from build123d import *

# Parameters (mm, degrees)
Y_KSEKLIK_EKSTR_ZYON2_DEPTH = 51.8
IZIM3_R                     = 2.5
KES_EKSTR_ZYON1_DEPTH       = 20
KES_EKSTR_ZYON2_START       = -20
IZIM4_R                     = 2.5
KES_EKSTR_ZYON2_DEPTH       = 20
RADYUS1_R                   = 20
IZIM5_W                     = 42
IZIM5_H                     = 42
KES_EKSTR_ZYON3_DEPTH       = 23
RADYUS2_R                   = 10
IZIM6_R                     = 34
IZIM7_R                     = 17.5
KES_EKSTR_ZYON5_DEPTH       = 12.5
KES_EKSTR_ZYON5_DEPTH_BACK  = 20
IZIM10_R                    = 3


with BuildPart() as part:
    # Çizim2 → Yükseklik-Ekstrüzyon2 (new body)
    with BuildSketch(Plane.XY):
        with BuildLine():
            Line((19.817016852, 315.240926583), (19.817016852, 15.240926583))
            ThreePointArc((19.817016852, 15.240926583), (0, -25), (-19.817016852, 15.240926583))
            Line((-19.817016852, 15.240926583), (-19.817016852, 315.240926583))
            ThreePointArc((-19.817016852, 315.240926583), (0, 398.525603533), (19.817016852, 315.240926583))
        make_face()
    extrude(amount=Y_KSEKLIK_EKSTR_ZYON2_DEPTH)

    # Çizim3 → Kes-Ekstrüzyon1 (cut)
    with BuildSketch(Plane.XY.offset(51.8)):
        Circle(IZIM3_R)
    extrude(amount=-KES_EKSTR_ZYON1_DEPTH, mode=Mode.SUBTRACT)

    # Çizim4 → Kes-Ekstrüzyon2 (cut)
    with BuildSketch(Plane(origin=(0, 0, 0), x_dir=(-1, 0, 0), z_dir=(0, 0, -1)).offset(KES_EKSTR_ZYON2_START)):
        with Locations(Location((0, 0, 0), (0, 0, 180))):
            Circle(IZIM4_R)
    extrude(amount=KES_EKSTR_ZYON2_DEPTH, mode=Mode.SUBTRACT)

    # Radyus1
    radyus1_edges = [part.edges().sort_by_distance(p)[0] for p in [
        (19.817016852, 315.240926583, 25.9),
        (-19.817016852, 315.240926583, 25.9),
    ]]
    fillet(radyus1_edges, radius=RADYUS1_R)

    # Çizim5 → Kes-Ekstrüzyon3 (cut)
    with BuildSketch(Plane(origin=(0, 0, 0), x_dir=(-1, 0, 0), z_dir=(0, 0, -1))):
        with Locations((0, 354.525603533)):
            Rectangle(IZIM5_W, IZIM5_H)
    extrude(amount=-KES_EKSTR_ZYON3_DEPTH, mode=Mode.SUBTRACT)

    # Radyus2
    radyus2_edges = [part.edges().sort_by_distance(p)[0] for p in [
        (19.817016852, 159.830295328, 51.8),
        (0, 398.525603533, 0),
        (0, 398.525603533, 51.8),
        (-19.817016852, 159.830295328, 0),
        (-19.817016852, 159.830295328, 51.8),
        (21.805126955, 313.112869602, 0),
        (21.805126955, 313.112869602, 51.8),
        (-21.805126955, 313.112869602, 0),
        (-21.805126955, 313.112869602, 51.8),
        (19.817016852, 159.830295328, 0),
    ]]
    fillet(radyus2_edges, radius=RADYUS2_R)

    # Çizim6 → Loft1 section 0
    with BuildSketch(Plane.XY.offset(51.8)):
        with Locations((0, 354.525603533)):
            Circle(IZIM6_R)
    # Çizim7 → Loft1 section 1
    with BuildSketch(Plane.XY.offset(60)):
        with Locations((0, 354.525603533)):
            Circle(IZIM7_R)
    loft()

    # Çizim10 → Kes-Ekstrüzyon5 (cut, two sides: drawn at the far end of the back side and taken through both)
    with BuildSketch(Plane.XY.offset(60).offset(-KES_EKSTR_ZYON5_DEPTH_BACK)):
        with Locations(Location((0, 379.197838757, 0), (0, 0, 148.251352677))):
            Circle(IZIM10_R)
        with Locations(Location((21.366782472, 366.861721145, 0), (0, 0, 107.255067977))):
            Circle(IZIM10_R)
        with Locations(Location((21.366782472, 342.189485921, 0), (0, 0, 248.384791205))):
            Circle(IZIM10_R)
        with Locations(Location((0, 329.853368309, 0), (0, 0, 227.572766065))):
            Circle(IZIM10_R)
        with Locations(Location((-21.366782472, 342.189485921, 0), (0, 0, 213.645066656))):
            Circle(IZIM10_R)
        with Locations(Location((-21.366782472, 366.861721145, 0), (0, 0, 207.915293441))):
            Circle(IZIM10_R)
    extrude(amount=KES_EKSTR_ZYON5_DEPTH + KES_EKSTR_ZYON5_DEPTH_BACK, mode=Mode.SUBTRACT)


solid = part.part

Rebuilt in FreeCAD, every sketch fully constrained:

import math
import FreeCAD as App
import Part
import Sketcher

V = App.Vector
Q = App.Units.Quantity


def edges_at(feature, points):
    """Names of the edges that pass closest to the given points."""
    edges = feature.Shape.Edges
    near = lambda p: min(range(len(edges)), key=lambda i: edges[i].distToShape(Part.Vertex(*p))[0])
    return sorted({f"Edge{near(p) + 1}" for p in points})


def add_polygon(sketch, points):
    """Adds a closed chain of lines whose ends are joined by coincident constraints."""
    first, n = sketch.GeometryCount, len(points)
    for a, b in zip(points, points[1:] + points[:1]):
        sketch.addGeometry(Part.LineSegment(App.Vector(*a, 0), App.Vector(*b, 0)), False)
    for i in range(n):
        sketch.addConstraint(Sketcher.Constraint("Coincident", first + i, 2, first + (i + 1) % n, 1))

doc = App.newDocument("Part")
body = doc.addObject("PartDesign::Body", "Body")

# Sketch on XY plane
sketch1 = doc.addObject("Sketcher::SketchObject", "Sketch")
body.addObject(sketch1)
sketch1.AttachmentSupport = (doc.XY_Plane, [""])
sketch1.MapMode = "FlatFace"
sketch1.addGeometry([
    Part.LineSegment(V(20, 15, 0), V(20, 315, 0)),
    Part.ArcOfCircle(Part.Circle(V(0, 355, 0), V(0, 0, 1), 44), math.radians(-63), math.radians(243)),
    Part.LineSegment(V(-20, 315, 0), V(-20, 15, 0)),
    Part.ArcOfCircle(Part.Circle(V(0, 0, 0), V(0, 0, 1), 25), math.radians(142), math.radians(398)),
], False)
sketch1.addConstraint([
    Sketcher.Constraint("Coincident", 0, 2, 1, 1),
    Sketcher.Constraint("Coincident", 1, 2, 2, 1),
    Sketcher.Constraint("Coincident", 2, 2, 3, 1),
    Sketcher.Constraint("Coincident", 3, 2, 0, 1),
    Sketcher.Constraint("Vertical", 0),
    Sketcher.Constraint("Vertical", 2),
    Sketcher.Constraint("Coincident", 3, 3, -1, 1),
    Sketcher.Constraint("Symmetric", 0, 2, 1, 2, -2),
    Sketcher.Constraint("Radius", 1, Q("44 mm")),
    Sketcher.Constraint("Radius", 3, Q("25 mm")),
    Sketcher.Constraint("DistanceY", 0, 1, 0, 2, Q("300 mm")),
    Sketcher.Constraint("DistanceY", -1, 1, 1, 3, Q("354.525604 mm")),
])
pad1 = doc.addObject("PartDesign::Pad", "Pad")
body.addObject(pad1)
pad1.Profile = sketch1
pad1.Length = 51.8

# Sketch on XY plane
sketch2 = doc.addObject("Sketcher::SketchObject", "Sketch001")
body.addObject(sketch2)
sketch2.AttachmentSupport = (doc.XY_Plane, [""])
sketch2.MapMode = "FlatFace"
sketch2.AttachmentOffset = App.Placement(V(0, 0, 51.8), App.Rotation())
sketch2.addGeometry(Part.Circle(V(0, 0, 0), V(0, 0, 1), 2.5), False)
sketch2.addConstraint([
    Sketcher.Constraint("Coincident", 0, 3, -1, 1),
    Sketcher.Constraint("Diameter", 0, Q("5 mm")),
])
pocket1 = doc.addObject("PartDesign::Pocket", "Pocket")
body.addObject(pocket1)
pocket1.Profile = sketch2
pocket1.Length = 20

# Sketch on XY plane
sketch3 = doc.addObject("Sketcher::SketchObject", "Sketch002")
body.addObject(sketch3)
sketch3.AttachmentSupport = (doc.XY_Plane, [""])
sketch3.MapMode = "FlatFace"
sketch3.AttachmentOffset = App.Placement(V(0, 0, 20), App.Rotation())
sketch3.addGeometry(Part.Circle(V(0, 0, 0), V(0, 0, 1), 2.5), False)
sketch3.addConstraint([
    Sketcher.Constraint("Coincident", 0, 3, -1, 1),
    Sketcher.Constraint("Diameter", 0, Q("5 mm")),
])
pocket2 = doc.addObject("PartDesign::Pocket", "Pocket001")
body.addObject(pocket2)
pocket2.Profile = sketch3
pocket2.Length = 20
doc.recompute()

fillet = doc.addObject("PartDesign::Fillet", "Fillet")
body.addObject(fillet)
fillet.Base = (pocket2, edges_at(pocket2, [(19.817, 315.241, 25.9), (-19.817, 315.241, 25.9)]))
fillet.Radius = 20

# Sketch on XY plane
sketch4 = doc.addObject("Sketcher::SketchObject", "Sketch003")
body.addObject(sketch4)
sketch4.AttachmentSupport = (doc.XY_Plane, [""])
sketch4.MapMode = "FlatFace"
add_polygon(sketch4, [(21, 376), (21, 334), (-21, 334), (-21, 376)])  # lines 0-3
sketch4.addConstraint([
    Sketcher.Constraint("Vertical", 0),
    Sketcher.Constraint("Horizontal", 1),
    Sketcher.Constraint("Vertical", 2),
    Sketcher.Constraint("Horizontal", 3),
    Sketcher.Constraint("Equal", 3, 0),
    Sketcher.Constraint("DistanceX", 1, 2, 1, 1, Q("42 mm")),
    Sketcher.Constraint("DistanceX", -1, 1, 0, 2, Q("21 mm")),
    Sketcher.Constraint("DistanceY", -1, 1, 0, 2, Q("333.525604 mm")),
])
pocket3 = doc.addObject("PartDesign::Pocket", "Pocket002")
body.addObject(pocket3)
pocket3.Profile = sketch4
pocket3.Length = 23
pocket3.Reversed = True
doc.recompute()

fillet2 = doc.addObject("PartDesign::Fillet", "Fillet001")
body.addObject(fillet2)
fillet2.Base = (pocket3, edges_at(pocket3, [
    (19.817, 159.83, 51.8),
    (0, 398.526, 0),
    (0, 398.526, 51.8),
    (-19.817, 159.83, 0),
    (-19.817, 159.83, 51.8),
    (21.805, 313.113, 0),
    (21.805, 313.113, 51.8),
    (-21.805, 313.113, 0),
    (-21.805, 313.113, 51.8),
    (19.817, 159.83, 0),
]))
fillet2.Radius = 10

# Sketch on XY plane
sketch5 = doc.addObject("Sketcher::SketchObject", "Sketch004")
body.addObject(sketch5)
sketch5.AttachmentSupport = (doc.XY_Plane, [""])
sketch5.MapMode = "FlatFace"
sketch5.AttachmentOffset = App.Placement(V(0, 0, 51.8), App.Rotation())
sketch5.addGeometry(Part.Circle(V(0, 355, 0), V(0, 0, 1), 34), False)
sketch5.addConstraint([
    Sketcher.Constraint("PointOnObject", 0, 3, -2),
    Sketcher.Constraint("Diameter", 0, Q("68 mm")),
    Sketcher.Constraint("DistanceY", -1, 1, 0, 3, Q("354.525604 mm")),
])

# Sketch on XY plane
sketch6 = doc.addObject("Sketcher::SketchObject", "Sketch005")
body.addObject(sketch6)
sketch6.AttachmentSupport = (doc.XY_Plane, [""])
sketch6.MapMode = "FlatFace"
sketch6.AttachmentOffset = App.Placement(V(0, 0, 60), App.Rotation())
sketch6.addGeometry(Part.Circle(V(0, 355, 0), V(0, 0, 1), 18), False)
sketch6.addConstraint([
    Sketcher.Constraint("PointOnObject", 0, 3, -2),
    Sketcher.Constraint("Diameter", 0, Q("35 mm")),
    Sketcher.Constraint("DistanceY", -1, 1, 0, 3, Q("354.525604 mm")),
])

additiveloft = doc.addObject("PartDesign::AdditiveLoft", "AdditiveLoft")
body.addObject(additiveloft)
additiveloft.Profile = sketch5
additiveloft.Sections = [sketch6]

# Sketch on XY plane
sketch7 = doc.addObject("Sketcher::SketchObject", "Sketch006")
body.addObject(sketch7)
sketch7.AttachmentSupport = (doc.XY_Plane, [""])
sketch7.MapMode = "FlatFace"
sketch7.AttachmentOffset = App.Placement(V(0, 0, 60), App.Rotation())
sketch7.addGeometry([
    Part.Circle(V(0, 379.2, 0), V(0, 0, 1), 3),  # 0
    Part.Circle(V(21.4, 366.9, 0), V(0, 0, 1), 3),  # 1
    Part.Circle(V(21.4, 342.2, 0), V(0, 0, 1), 3),  # 2
    Part.Circle(V(0, 329.9, 0), V(0, 0, 1), 3),  # 3
    Part.Circle(V(-21.4, 342.2, 0), V(0, 0, 1), 3),  # 4
    Part.Circle(V(-21.4, 366.9, 0), V(0, 0, 1), 3),  # 5
], False)
sketch7.addConstraint([
    Sketcher.Constraint("Equal", 0, 1),
    Sketcher.Constraint("Equal", 1, 2),
    Sketcher.Constraint("Equal", 2, 3),
    Sketcher.Constraint("Equal", 3, 4),
    Sketcher.Constraint("Equal", 4, 5),
    Sketcher.Constraint("Symmetric", 2, 3, 4, 3, -2),
    Sketcher.Constraint("Symmetric", 1, 3, 5, 3, -2),
    Sketcher.Constraint("PointOnObject", 0, 3, -2),
    Sketcher.Constraint("PointOnObject", 3, 3, -2),
    Sketcher.Constraint("Vertical", 1, 3, 2, 3),
    Sketcher.Constraint("Diameter", 0, Q("6 mm")),
    Sketcher.Constraint("DistanceY", -1, 1, 0, 3, Q("379.197839 mm")),
    Sketcher.Constraint("DistanceY", -1, 1, 1, 3, Q("366.861721 mm")),
    Sketcher.Constraint("DistanceY", -1, 1, 3, 3, Q("329.853368 mm")),
    Sketcher.Constraint("DistanceX", -1, 1, 1, 3, Q("21.366782 mm")),
    Sketcher.Constraint("DistanceY", -1, 1, 2, 3, Q("342.189486 mm")),
])
pocket4 = doc.addObject("PartDesign::Pocket", "Pocket003")
body.addObject(pocket4)
pocket4.Profile = sketch7
pocket4.Type = "TwoLengths"
pocket4.Length = 12.5
pocket4.Length2 = 20
pocket4.Reversed = True

doc.recompute()
